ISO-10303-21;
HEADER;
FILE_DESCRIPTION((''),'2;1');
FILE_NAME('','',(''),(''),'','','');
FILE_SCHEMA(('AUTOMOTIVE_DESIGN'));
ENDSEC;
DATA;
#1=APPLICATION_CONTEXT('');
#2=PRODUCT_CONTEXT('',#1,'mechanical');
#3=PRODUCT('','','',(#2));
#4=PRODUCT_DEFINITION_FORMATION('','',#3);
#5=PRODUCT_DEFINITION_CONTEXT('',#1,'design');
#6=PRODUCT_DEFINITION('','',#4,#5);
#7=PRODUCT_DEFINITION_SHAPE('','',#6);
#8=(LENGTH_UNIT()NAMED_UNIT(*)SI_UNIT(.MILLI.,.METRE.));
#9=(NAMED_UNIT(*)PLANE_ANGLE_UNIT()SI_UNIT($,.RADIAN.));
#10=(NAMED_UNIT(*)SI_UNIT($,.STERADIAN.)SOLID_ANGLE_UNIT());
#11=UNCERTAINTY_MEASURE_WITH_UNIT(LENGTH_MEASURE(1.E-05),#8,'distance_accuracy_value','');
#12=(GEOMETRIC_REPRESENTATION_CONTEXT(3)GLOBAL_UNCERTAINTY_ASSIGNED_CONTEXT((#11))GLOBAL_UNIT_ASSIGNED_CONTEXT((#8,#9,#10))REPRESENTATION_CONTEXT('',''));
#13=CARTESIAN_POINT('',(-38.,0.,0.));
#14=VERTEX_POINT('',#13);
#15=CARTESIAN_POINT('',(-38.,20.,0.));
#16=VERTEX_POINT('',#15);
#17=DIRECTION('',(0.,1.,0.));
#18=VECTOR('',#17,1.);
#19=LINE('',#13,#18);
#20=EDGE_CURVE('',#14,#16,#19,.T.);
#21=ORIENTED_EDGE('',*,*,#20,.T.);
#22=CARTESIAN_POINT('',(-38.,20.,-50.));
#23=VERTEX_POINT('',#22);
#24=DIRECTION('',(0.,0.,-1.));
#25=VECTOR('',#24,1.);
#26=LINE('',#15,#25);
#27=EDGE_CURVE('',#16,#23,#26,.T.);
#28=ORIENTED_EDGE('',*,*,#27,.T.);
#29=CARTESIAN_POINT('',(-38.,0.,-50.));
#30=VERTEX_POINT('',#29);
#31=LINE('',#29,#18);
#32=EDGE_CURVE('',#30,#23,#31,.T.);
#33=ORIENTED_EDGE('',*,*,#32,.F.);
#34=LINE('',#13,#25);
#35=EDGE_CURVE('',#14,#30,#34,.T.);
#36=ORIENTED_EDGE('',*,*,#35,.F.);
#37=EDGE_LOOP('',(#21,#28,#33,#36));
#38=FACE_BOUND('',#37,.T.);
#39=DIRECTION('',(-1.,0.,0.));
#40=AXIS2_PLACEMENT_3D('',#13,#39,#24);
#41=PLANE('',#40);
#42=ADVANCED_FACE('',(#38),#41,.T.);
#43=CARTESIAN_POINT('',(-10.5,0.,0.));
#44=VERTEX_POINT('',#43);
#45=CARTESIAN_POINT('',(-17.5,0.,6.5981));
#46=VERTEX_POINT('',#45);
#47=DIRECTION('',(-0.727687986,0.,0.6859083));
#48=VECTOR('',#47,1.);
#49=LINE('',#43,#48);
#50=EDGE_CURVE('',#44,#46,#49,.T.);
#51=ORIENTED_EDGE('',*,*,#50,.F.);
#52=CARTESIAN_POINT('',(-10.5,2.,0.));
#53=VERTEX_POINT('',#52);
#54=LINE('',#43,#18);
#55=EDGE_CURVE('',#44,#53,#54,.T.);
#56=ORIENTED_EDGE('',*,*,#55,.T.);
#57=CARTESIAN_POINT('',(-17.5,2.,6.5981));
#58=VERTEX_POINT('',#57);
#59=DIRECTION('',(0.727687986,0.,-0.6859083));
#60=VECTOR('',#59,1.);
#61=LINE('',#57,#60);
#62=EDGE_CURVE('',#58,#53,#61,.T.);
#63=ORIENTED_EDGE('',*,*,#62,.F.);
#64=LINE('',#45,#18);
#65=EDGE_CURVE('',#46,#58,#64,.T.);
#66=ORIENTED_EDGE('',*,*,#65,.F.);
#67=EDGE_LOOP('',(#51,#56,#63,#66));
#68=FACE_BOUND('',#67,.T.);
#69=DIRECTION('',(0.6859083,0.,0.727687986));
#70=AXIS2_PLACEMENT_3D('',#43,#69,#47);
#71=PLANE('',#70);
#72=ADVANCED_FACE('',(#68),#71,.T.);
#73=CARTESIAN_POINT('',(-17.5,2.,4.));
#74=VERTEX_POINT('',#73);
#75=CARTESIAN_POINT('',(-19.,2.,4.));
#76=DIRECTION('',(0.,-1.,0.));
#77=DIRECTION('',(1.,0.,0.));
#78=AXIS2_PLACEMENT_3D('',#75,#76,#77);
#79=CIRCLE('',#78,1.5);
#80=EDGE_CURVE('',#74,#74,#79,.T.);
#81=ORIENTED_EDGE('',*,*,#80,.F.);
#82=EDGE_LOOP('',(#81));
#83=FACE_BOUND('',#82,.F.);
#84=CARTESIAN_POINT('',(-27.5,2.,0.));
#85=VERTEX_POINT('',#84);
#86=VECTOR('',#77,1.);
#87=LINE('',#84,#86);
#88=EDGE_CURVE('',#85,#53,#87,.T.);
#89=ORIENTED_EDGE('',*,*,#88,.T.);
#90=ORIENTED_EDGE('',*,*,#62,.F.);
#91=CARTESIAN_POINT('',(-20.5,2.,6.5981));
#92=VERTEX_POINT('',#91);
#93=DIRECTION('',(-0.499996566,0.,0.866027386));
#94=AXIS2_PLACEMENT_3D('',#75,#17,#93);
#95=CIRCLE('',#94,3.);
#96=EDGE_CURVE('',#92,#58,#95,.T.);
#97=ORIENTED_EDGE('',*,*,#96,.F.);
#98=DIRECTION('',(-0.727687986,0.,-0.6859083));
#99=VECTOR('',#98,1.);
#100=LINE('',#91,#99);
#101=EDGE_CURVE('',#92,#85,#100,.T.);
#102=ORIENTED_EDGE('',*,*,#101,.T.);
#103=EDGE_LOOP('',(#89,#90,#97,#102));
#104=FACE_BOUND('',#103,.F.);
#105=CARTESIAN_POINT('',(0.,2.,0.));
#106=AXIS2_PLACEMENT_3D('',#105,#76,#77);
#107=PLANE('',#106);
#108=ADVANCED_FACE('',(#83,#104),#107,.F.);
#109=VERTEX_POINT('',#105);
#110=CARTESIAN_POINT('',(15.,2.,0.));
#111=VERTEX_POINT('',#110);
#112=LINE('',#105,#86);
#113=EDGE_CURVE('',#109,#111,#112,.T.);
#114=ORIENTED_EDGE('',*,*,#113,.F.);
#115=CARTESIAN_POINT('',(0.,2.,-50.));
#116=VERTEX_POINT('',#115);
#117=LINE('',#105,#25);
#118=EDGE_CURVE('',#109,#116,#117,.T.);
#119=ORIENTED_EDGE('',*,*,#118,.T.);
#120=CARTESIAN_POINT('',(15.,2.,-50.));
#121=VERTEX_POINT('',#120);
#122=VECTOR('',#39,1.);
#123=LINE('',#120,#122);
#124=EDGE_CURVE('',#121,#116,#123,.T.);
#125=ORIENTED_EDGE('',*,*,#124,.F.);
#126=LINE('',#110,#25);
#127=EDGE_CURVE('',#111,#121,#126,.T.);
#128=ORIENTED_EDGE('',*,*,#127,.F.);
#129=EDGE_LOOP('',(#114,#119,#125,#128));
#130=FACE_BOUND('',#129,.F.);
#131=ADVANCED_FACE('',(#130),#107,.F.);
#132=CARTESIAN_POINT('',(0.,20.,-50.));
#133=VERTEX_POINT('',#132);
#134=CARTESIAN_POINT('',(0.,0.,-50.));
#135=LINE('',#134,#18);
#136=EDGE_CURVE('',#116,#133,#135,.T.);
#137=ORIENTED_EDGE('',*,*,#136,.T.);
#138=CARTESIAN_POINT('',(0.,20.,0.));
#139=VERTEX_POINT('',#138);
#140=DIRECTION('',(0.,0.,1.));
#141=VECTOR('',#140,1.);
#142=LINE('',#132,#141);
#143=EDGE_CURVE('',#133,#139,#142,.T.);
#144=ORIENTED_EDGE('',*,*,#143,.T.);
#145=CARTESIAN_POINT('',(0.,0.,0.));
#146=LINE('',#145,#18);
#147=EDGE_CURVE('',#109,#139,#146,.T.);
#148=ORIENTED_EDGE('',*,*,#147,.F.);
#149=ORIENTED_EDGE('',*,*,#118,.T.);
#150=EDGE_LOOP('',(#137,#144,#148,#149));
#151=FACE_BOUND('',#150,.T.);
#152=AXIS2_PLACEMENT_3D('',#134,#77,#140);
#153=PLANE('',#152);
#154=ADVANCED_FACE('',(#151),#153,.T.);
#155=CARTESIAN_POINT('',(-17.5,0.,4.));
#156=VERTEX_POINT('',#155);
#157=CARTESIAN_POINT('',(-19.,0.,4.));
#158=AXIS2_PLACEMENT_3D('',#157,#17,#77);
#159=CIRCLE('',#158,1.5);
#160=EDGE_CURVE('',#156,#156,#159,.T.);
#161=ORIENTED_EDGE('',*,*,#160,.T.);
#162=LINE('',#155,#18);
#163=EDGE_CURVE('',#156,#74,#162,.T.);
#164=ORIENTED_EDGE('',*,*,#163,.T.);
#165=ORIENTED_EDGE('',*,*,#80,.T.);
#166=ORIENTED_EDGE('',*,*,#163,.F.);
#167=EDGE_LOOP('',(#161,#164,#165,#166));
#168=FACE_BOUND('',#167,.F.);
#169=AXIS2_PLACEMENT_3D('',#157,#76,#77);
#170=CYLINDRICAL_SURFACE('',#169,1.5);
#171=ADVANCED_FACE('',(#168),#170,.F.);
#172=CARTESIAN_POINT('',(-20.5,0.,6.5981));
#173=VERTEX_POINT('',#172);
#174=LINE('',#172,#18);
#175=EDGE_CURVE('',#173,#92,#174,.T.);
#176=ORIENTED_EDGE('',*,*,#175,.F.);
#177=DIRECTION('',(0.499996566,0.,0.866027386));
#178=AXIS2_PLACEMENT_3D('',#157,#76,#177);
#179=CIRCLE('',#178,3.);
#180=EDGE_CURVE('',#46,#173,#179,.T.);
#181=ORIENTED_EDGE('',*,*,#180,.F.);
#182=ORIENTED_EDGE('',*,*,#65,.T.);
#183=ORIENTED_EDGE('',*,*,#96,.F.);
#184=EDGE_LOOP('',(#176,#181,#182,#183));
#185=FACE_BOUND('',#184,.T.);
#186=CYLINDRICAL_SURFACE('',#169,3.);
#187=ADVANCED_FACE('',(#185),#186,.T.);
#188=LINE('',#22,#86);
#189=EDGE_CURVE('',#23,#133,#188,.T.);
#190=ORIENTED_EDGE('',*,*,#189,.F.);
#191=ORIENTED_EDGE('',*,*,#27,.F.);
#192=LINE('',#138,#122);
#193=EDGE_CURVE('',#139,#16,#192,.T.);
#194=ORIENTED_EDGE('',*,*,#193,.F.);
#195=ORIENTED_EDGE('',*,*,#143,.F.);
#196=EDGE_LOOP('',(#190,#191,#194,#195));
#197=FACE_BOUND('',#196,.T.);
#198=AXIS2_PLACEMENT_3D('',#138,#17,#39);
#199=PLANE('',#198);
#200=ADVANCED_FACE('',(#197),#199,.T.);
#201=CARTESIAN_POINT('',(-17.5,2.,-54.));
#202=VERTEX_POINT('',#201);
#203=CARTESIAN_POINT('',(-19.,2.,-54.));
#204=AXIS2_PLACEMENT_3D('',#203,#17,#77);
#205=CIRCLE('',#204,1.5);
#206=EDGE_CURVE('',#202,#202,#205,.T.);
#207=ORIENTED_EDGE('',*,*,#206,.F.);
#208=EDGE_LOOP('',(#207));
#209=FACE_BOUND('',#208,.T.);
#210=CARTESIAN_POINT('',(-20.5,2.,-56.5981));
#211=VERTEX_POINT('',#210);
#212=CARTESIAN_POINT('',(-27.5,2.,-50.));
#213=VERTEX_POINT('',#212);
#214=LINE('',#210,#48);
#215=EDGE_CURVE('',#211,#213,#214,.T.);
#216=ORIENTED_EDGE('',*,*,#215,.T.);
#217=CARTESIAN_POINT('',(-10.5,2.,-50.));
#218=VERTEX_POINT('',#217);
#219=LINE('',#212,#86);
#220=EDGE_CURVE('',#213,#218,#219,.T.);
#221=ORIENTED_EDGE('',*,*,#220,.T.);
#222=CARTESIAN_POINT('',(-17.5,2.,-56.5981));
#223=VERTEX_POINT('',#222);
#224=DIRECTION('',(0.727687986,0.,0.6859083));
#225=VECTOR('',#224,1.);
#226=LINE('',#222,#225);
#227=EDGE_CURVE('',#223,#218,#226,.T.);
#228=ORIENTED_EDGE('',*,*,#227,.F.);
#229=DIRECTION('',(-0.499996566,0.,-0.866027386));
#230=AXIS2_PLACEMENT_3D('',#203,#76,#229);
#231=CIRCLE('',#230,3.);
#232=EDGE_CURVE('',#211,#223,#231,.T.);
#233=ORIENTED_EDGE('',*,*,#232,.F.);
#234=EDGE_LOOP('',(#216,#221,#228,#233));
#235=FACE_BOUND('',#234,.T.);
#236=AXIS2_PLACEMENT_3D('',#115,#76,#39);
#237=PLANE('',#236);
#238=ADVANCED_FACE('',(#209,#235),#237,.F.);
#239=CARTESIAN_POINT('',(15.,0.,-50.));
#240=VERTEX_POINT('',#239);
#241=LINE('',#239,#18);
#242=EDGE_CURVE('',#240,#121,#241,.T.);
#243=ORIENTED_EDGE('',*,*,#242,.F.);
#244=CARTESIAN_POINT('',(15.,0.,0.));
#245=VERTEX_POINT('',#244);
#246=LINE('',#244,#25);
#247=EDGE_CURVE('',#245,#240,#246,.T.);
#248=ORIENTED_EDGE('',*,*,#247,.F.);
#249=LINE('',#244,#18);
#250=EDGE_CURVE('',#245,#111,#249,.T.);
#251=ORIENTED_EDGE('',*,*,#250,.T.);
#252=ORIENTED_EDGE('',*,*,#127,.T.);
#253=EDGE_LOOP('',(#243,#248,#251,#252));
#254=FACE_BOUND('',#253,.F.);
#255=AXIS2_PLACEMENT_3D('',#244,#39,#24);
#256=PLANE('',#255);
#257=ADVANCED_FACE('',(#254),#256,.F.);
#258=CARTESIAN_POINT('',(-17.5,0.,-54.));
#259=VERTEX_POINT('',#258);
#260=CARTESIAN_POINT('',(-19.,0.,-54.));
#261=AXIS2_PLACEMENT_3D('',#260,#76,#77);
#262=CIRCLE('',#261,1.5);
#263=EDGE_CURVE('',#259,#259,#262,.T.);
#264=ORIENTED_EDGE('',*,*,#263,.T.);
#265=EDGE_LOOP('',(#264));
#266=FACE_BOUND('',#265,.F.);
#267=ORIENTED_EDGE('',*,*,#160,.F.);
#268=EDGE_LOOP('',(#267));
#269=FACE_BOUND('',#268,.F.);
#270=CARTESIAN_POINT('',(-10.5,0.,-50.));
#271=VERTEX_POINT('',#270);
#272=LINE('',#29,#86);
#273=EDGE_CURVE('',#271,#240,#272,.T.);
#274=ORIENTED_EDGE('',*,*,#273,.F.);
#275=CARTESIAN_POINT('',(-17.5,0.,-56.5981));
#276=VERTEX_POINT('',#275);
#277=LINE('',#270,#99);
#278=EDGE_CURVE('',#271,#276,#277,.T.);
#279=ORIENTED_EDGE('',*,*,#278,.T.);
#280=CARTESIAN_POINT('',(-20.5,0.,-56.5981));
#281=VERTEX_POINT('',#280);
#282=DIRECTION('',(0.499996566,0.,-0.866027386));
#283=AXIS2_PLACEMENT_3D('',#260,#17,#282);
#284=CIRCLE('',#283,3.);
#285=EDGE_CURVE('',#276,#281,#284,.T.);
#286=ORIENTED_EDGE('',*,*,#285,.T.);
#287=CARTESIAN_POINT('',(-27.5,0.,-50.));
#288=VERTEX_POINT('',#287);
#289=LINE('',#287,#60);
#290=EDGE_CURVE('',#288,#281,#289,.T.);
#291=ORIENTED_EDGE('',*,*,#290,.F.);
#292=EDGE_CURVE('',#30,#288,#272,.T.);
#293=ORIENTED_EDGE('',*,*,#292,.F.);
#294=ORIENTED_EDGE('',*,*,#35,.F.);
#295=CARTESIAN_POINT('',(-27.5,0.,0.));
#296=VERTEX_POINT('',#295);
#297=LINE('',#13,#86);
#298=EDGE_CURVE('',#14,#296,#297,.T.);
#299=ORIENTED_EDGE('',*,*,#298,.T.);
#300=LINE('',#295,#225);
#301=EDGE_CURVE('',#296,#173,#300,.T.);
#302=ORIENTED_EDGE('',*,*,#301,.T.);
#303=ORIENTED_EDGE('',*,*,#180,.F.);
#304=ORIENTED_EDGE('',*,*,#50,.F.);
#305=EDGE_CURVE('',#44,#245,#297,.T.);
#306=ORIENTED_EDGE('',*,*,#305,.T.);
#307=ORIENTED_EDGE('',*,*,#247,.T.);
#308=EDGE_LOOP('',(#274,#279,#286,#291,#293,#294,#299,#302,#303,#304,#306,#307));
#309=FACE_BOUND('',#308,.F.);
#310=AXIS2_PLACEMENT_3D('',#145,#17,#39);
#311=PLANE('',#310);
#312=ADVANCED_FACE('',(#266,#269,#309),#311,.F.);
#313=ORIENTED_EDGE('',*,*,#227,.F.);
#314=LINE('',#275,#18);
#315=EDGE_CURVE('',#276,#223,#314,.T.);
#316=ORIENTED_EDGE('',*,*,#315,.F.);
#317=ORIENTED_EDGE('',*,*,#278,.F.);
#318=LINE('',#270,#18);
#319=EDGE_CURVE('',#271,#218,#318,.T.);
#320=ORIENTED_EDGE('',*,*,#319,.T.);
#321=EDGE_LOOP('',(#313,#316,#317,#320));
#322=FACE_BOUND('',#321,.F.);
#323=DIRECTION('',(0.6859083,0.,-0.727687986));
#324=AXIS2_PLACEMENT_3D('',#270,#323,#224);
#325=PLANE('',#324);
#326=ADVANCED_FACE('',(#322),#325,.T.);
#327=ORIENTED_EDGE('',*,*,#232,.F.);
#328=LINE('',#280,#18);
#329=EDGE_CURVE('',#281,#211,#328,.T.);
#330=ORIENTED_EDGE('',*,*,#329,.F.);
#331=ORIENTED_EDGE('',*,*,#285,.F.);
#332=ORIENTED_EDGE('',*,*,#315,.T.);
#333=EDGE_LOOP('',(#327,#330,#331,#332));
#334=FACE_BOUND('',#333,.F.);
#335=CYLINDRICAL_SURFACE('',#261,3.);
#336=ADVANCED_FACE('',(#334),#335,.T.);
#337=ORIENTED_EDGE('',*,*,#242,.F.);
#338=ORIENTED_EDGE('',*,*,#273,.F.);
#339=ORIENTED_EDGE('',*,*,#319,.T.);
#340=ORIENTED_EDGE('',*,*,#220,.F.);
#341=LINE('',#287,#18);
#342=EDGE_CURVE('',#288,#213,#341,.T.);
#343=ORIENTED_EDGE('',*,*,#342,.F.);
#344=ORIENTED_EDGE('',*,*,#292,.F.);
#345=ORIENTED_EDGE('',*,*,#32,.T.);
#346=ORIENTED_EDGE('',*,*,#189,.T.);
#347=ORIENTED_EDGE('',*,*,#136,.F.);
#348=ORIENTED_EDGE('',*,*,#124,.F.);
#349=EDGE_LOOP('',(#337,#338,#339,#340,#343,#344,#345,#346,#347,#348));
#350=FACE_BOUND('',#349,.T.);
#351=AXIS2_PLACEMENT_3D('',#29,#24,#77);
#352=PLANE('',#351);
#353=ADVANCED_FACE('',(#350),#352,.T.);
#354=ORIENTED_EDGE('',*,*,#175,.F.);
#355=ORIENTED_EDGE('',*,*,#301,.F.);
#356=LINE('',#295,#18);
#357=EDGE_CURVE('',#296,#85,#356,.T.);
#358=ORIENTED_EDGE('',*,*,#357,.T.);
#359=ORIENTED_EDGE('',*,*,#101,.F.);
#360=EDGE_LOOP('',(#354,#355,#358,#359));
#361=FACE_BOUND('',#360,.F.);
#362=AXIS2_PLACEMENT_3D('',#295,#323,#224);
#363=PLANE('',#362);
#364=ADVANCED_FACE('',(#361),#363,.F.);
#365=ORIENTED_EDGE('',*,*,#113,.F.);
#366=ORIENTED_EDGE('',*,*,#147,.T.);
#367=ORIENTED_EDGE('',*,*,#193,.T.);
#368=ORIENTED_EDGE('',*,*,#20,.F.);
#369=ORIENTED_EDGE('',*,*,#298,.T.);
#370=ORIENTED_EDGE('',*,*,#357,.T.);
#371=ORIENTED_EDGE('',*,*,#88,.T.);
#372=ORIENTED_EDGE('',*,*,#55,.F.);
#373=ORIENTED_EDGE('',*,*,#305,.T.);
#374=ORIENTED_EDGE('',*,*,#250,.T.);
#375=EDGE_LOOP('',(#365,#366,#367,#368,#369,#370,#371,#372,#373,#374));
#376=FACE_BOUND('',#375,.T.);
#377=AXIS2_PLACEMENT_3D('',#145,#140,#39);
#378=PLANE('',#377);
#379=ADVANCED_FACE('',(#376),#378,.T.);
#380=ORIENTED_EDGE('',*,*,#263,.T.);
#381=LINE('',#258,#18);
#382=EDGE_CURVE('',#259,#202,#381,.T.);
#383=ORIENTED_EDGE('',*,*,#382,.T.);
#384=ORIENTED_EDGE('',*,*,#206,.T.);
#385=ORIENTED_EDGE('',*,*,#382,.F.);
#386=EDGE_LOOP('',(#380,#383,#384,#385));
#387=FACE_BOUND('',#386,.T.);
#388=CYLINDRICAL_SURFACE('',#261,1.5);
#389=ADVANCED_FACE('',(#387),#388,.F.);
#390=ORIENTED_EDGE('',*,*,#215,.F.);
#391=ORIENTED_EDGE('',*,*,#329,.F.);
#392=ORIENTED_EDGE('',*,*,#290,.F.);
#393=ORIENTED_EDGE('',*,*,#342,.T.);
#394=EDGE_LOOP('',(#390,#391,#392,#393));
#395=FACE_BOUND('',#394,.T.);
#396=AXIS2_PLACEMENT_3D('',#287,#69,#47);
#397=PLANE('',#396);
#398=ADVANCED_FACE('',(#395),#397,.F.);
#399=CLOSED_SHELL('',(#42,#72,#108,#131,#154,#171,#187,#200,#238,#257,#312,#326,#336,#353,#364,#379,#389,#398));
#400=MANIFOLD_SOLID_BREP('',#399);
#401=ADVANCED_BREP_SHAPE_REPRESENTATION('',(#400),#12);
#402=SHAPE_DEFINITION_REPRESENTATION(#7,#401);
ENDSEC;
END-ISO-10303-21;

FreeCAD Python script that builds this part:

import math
import FreeCAD as App
import Part
import Sketcher
Q = App.Units.Quantity

doc = App.newDocument("Part")
body = doc.addObject("PartDesign::Body", "Body")

sketch1 = body.newObject("Sketcher::SketchObject", "Sketch")
sketch1.AttachmentSupport = (doc.getObject("XZ_Plane"), [""])
sketch1.MapMode = "FlatFace"
sketch1.addGeometry(Part.LineSegment(App.Vector(-38, 0, 0), App.Vector(0, 0, 0)), False)
sketch1.addGeometry(Part.LineSegment(App.Vector(0, 0, 0), App.Vector(0, -50, 0)), False)
sketch1.addGeometry(Part.LineSegment(App.Vector(0, -50, 0), App.Vector(-38, -50, 0)), False)
sketch1.addGeometry(Part.LineSegment(App.Vector(-38, -50, 0), App.Vector(-38, 0, 0)), False)
sketch1.addConstraint(Sketcher.Constraint("Coincident", 0, 2, 1, 1))
sketch1.addConstraint(Sketcher.Constraint("Coincident", 1, 2, 2, 1))
sketch1.addConstraint(Sketcher.Constraint("Coincident", 2, 2, 3, 1))
sketch1.addConstraint(Sketcher.Constraint("Coincident", 3, 2, 0, 1))
sketch1.addConstraint(Sketcher.Constraint("Horizontal", 0))
sketch1.addConstraint(Sketcher.Constraint("Vertical", 1))
sketch1.addConstraint(Sketcher.Constraint("Horizontal", 2))
sketch1.addConstraint(Sketcher.Constraint("Vertical", 3))
sketch1.addConstraint(Sketcher.Constraint("Coincident", 0, 2, -1, 1))
sketch1.addConstraint(Sketcher.Constraint("DistanceX", 0, 1, 0, 2, Q("38 mm")))
sketch1.addConstraint(Sketcher.Constraint("DistanceY", 1, 2, 1, 1, Q("50 mm")))
pad1 = body.newObject("PartDesign::Pad", "Pad")
pad1.Profile = sketch1
pad1.Length = 20
pad1.Reversed = True

sketch2 = body.newObject("Sketcher::SketchObject", "Sketch001")
sketch2.AttachmentSupport = (doc.getObject("XZ_Plane"), [""])
sketch2.MapMode = "FlatFace"
sketch2.addGeometry(Part.LineSegment(App.Vector(15, 0, 0), App.Vector(0, 0, 0)), False)
sketch2.addGeometry(Part.LineSegment(App.Vector(0, 0, 0), App.Vector(0, -50, 0)), False)
sketch2.addGeometry(Part.LineSegment(App.Vector(0, -50, 0), App.Vector(15, -50, 0)), False)
sketch2.addGeometry(Part.LineSegment(App.Vector(15, -50, 0), App.Vector(15, 0, 0)), False)
sketch2.addConstraint(Sketcher.Constraint("Coincident", 0, 2, 1, 1))
sketch2.addConstraint(Sketcher.Constraint("Coincident", 1, 2, 2, 1))
sketch2.addConstraint(Sketcher.Constraint("Coincident", 2, 2, 3, 1))
sketch2.addConstraint(Sketcher.Constraint("Coincident", 3, 2, 0, 1))
sketch2.addConstraint(Sketcher.Constraint("Horizontal", 0))
sketch2.addConstraint(Sketcher.Constraint("Vertical", 1))
sketch2.addConstraint(Sketcher.Constraint("Horizontal", 2))
sketch2.addConstraint(Sketcher.Constraint("Vertical", 3))
sketch2.addConstraint(Sketcher.Constraint("Coincident", 0, 2, -1, 1))
sketch2.addConstraint(Sketcher.Constraint("DistanceX", 0, 2, 0, 1, Q("15 mm")))
sketch2.addConstraint(Sketcher.Constraint("DistanceY", 1, 2, 1, 1, Q("50 mm")))
pad2 = body.newObject("PartDesign::Pad", "Pad001")
pad2.Profile = sketch2
pad2.Length = 2
pad2.Reversed = True

sketch3 = body.newObject("Sketcher::SketchObject", "Sketch002")
sketch3.AttachmentSupport = (doc.getObject("XZ_Plane"), [""])
sketch3.MapMode = "FlatFace"
sketch3.addGeometry(Part.LineSegment(App.Vector(-27.5, 0, 0), App.Vector(-10.5, 0, 0)), False)
sketch3.addGeometry(Part.LineSegment(App.Vector(-10.5, 0, 0), App.Vector(-17.5, 6.6, 0)), False)
sketch3.addGeometry(Part.ArcOfCircle(Part.Circle(App.Vector(-19, 4, 0), App.Vector(0, 0, 1), 3), math.radians(60), math.radians(120)), False)
sketch3.addGeometry(Part.LineSegment(App.Vector(-20.5, 6.6, 0), App.Vector(-27.5, 0, 0)), False)
sketch3.addGeometry(Part.Circle(App.Vector(-19, 4, 0), App.Vector(0, 0, 1), 1.5), False)
sketch3.addConstraint(Sketcher.Constraint("Coincident", 0, 2, 1, 1))
sketch3.addConstraint(Sketcher.Constraint("Coincident", 1, 2, 2, 1))
sketch3.addConstraint(Sketcher.Constraint("Coincident", 2, 2, 3, 1))
sketch3.addConstraint(Sketcher.Constraint("Coincident", 3, 2, 0, 1))
sketch3.addConstraint(Sketcher.Constraint("Horizontal", 0))
sketch3.addConstraint(Sketcher.Constraint("Coincident", 4, 3, 2, 3))
sketch3.addConstraint(Sketcher.Constraint("PointOnObject", 0, 2, -1))
sketch3.addConstraint(Sketcher.Constraint("Horizontal", 1, 2, 2, 2))
sketch3.addConstraint(Sketcher.Constraint("Equal", 1, 3))
sketch3.addConstraint(Sketcher.Constraint("Diameter", 4, Q("3 mm")))
sketch3.addConstraint(Sketcher.Constraint("Radius", 2, Q("3 mm")))
sketch3.addConstraint(Sketcher.Constraint("DistanceY", -1, 1, 2, 3, Q("4 mm")))
sketch3.addConstraint(Sketcher.Constraint("DistanceX", 1, 2, 0, 2, Q("7 mm")))
sketch3.addConstraint(Sketcher.Constraint("DistanceX", 2, 2, 1, 2, Q("3 mm")))
sketch3.addConstraint(Sketcher.Constraint("DistanceX", 2, 3, -1, 1, Q("19 mm")))
pad3 = body.newObject("PartDesign::Pad", "Pad002")
pad3.Profile = sketch3
pad3.Length = 2
pad3.Reversed = True
doc.recompute()

datumplane = body.newObject("PartDesign::Plane", "DatumPlane")
datumplane.AttachmentSupport = (doc.getObject("XY_Plane"), [""])
datumplane.MapMode = "FlatFace"
datumplane.AttachmentOffset = App.Placement(App.Vector(0, 0, -25), App.Rotation())
mirrored = body.newObject("PartDesign::Mirrored", "Mirrored")
mirrored.Originals = [pad3]
mirrored.MirrorPlane = (datumplane, [""])
body.Tip = mirrored

doc.recompute()
